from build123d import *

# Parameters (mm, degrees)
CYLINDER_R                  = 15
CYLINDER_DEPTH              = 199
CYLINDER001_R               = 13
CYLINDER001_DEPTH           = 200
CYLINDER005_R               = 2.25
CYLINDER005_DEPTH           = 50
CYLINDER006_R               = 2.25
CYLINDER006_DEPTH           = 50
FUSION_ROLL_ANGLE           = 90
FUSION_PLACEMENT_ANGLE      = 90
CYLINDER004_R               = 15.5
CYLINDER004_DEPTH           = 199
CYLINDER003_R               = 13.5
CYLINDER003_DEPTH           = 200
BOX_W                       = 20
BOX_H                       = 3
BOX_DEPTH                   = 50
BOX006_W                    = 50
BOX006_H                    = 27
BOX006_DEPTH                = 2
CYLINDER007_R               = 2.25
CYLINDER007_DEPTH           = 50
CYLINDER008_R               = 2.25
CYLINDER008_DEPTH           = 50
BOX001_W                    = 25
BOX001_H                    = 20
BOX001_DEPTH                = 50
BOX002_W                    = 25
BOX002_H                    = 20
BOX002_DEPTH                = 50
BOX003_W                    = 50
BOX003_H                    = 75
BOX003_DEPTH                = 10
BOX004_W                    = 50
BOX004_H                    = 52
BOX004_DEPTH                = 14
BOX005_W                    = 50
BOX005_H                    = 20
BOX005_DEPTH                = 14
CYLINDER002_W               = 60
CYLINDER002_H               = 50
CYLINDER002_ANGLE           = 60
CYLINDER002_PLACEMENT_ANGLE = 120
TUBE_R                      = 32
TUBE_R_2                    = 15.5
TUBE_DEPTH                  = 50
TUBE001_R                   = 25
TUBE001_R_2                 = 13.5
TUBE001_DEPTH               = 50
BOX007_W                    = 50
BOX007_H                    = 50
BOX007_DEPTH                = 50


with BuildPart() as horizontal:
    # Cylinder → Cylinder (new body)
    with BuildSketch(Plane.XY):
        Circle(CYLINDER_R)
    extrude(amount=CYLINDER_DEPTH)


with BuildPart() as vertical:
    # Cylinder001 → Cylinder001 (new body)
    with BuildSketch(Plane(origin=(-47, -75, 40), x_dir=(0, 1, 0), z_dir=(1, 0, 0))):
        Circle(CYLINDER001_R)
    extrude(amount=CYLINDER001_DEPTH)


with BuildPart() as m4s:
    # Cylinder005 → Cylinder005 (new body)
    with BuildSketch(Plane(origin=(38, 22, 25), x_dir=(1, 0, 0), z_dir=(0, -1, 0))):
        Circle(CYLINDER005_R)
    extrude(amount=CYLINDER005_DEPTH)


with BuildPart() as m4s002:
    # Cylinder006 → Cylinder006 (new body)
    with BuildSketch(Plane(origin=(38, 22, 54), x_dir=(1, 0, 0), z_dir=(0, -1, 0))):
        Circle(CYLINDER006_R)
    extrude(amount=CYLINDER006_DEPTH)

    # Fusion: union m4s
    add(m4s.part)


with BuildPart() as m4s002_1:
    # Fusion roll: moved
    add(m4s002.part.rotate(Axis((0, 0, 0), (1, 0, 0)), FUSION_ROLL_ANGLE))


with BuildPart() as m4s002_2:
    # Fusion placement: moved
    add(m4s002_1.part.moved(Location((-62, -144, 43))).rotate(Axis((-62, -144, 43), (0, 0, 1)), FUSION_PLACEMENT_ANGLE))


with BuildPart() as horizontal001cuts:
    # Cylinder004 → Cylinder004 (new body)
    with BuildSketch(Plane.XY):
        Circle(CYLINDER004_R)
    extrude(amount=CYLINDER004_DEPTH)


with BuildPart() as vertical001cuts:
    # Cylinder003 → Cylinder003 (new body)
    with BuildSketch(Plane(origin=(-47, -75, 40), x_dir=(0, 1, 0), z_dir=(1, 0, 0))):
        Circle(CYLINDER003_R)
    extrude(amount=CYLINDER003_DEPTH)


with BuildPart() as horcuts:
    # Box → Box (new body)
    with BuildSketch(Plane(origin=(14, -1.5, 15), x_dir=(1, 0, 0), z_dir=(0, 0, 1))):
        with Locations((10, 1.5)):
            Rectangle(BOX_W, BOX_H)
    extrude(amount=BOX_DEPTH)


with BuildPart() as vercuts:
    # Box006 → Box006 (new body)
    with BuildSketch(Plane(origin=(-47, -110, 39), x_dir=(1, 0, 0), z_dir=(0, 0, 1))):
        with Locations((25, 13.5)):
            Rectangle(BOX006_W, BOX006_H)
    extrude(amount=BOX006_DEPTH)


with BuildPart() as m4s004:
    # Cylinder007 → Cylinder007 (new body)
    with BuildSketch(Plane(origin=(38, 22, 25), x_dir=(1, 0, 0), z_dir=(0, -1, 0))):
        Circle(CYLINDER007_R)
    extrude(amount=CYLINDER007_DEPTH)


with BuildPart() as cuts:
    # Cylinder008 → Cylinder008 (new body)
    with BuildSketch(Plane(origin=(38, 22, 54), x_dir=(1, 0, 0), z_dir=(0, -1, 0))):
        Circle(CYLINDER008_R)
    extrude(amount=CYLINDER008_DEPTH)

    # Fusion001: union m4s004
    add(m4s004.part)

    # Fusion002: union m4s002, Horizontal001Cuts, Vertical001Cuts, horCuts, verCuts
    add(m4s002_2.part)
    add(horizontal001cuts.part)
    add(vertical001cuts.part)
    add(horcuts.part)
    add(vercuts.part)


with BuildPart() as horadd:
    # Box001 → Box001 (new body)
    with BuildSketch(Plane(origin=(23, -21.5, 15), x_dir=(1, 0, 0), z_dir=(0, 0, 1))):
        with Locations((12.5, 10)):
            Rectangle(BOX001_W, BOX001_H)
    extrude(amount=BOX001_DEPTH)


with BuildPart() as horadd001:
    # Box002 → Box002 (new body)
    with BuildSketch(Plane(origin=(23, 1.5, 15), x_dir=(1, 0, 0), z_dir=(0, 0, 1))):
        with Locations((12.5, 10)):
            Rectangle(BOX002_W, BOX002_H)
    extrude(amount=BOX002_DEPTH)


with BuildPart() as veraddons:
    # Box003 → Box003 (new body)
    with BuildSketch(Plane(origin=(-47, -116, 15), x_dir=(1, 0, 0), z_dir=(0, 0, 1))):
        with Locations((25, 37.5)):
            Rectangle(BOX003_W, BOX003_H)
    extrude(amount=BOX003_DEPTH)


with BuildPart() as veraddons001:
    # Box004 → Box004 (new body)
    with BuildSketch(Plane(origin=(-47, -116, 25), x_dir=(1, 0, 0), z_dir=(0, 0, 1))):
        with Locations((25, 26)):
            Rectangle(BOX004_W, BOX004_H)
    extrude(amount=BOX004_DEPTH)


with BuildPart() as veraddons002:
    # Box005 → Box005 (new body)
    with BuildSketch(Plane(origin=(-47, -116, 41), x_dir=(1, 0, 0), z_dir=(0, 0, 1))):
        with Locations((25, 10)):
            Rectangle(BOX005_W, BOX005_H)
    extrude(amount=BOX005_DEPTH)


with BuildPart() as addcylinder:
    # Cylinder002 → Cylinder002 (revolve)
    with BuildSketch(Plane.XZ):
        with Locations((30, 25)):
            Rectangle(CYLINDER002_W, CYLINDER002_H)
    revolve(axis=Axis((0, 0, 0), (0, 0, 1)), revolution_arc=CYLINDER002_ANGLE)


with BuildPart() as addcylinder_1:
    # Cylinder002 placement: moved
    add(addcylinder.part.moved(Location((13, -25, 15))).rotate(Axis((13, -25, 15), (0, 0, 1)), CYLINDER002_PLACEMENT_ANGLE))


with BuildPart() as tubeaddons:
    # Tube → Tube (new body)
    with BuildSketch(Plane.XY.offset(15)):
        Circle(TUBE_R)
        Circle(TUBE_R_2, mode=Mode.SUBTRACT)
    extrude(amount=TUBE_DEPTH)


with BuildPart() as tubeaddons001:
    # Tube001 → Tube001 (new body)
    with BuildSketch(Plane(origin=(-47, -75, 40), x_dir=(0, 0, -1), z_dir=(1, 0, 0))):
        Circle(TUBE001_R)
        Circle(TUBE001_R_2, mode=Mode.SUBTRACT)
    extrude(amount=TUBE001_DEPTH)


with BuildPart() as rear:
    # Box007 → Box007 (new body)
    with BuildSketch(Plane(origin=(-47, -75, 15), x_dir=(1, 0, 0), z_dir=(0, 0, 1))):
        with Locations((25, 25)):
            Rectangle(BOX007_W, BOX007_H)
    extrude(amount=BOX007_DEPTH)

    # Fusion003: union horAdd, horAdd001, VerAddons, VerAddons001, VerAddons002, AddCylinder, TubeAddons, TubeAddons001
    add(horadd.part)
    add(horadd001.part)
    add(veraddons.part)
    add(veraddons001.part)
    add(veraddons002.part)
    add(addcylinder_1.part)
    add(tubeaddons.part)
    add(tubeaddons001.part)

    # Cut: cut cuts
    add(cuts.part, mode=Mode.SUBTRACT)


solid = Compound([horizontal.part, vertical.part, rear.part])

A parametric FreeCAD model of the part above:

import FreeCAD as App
import Part
import Sketcher

V = App.Vector
Q = App.Units.Quantity


def add_polygon(sketch, points):
    """Adds a closed chain of lines whose ends are joined by coincident constraints."""
    first, n = sketch.GeometryCount, len(points)
    for a, b in zip(points, points[1:] + points[:1]):
        sketch.addGeometry(Part.LineSegment(App.Vector(*a, 0), App.Vector(*b, 0)), False)
    for i in range(n):
        sketch.addConstraint(Sketcher.Constraint("Coincident", first + i, 2, first + (i + 1) % n, 1))

doc = App.newDocument("Part")
body = doc.addObject("PartDesign::Body", "Body")

# Sketch on XY plane
sketch1 = body.newObject("Sketcher::SketchObject", "Sketch")
sketch1.AttachmentSupport = (doc.getObject("XY_Plane"), [""])
sketch1.MapMode = "FlatFace"
sketch1.addGeometry(Part.Circle(V(0, 0, 0), V(0, 0, 1), 15), False)
sketch1.addConstraint(Sketcher.Constraint("Coincident", 0, 3, -1, 1))
sketch1.addConstraint(Sketcher.Constraint("Diameter", 0, Q("30 mm")))
pad1 = body.newObject("PartDesign::Pad", "Pad")
pad1.Profile = sketch1
pad1.Length = 199
body2 = doc.addObject("PartDesign::Body", "Body001")

# Sketch on YZ plane
sketch2 = body2.newObject("Sketcher::SketchObject", "Sketch001")
sketch2.AttachmentSupport = (doc.getObject("YZ_Plane001"), [""])
sketch2.MapMode = "FlatFace"
sketch2.AttachmentOffset = App.Placement(V(0, 0, -47), App.Rotation())
sketch2.addGeometry(Part.Circle(V(-75, 40, 0), V(0, 0, 1), 13), False)
sketch2.addConstraint(Sketcher.Constraint("Diameter", 0, Q("26 mm")))
sketch2.addConstraint(Sketcher.Constraint("DistanceX", 0, 3, -1, 1, Q("75 mm")))
sketch2.addConstraint(Sketcher.Constraint("DistanceY", -1, 1, 0, 3, Q("40 mm")))
pad2 = body2.newObject("PartDesign::Pad", "Pad001")
pad2.Profile = sketch2
pad2.Length = 200
body3 = doc.addObject("PartDesign::Body", "Body002")

# Sketch on XZ plane
sketch3 = body3.newObject("Sketcher::SketchObject", "Sketch002")
sketch3.AttachmentSupport = (doc.getObject("XZ_Plane002"), [""])
sketch3.MapMode = "FlatFace"
sketch3.AttachmentOffset = App.Placement(V(0, 0, -22), App.Rotation())
sketch3.addGeometry(Part.Circle(V(38, 25, 0), V(0, 0, 1), 2.2), False)
sketch3.addConstraint(Sketcher.Constraint("Diameter", 0, Q("4.5 mm")))
sketch3.addConstraint(Sketcher.Constraint("DistanceX", -1, 1, 0, 3, Q("38 mm")))
sketch3.addConstraint(Sketcher.Constraint("DistanceY", -1, 1, 0, 3, Q("25 mm")))
pad3 = body3.newObject("PartDesign::Pad", "Pad002")
pad3.Profile = sketch3
pad3.Length = 50
body4 = doc.addObject("PartDesign::Body", "Body003")
body4.AllowCompound = True

# Sketch on XZ plane
sketch4 = body4.newObject("Sketcher::SketchObject", "Sketch003")
sketch4.AttachmentSupport = (doc.getObject("XZ_Plane003"), [""])
sketch4.MapMode = "FlatFace"
sketch4.AttachmentOffset = App.Placement(V(0, 0, -22), App.Rotation())
sketch4.addGeometry(Part.Circle(V(38, 54, 0), V(0, 0, 1), 2.2), False)
sketch4.addConstraint(Sketcher.Constraint("Diameter", 0, Q("4.5 mm")))
sketch4.addConstraint(Sketcher.Constraint("DistanceX", -1, 1, 0, 3, Q("38 mm")))
sketch4.addConstraint(Sketcher.Constraint("DistanceY", -1, 1, 0, 3, Q("54 mm")))
pad4 = body4.newObject("PartDesign::Pad", "Pad003")
pad4.Profile = sketch4
pad4.Length = 50
doc.recompute()

boolean = body4.newObject("PartDesign::Boolean", "Boolean")
boolean.Type = "Fuse"
boolean.addObjects([body3])
body5 = doc.addObject("PartDesign::Body", "Body004")
body5.AllowCompound = True
doc.recompute()

body4.Placement = App.Placement(V(0, 0, 0), App.Rotation(V(1, 0, 0), 90))
boolean2 = body5.newObject("PartDesign::Boolean", "Boolean001")
boolean2.Type = "Fuse"
boolean2.addObjects([body4])
body6 = doc.addObject("PartDesign::Body", "Body005")
body6.AllowCompound = True
doc.recompute()

body5.Placement = App.Placement(V(-62, -144, 43), App.Rotation(V(0, 0, 1), 90))
boolean3 = body6.newObject("PartDesign::Boolean", "Boolean002")
boolean3.Type = "Fuse"
boolean3.addObjects([body5])
body7 = doc.addObject("PartDesign::Body", "Body006")

# Sketch on XY plane
sketch5 = body7.newObject("Sketcher::SketchObject", "Sketch004")
sketch5.AttachmentSupport = (doc.getObject("XY_Plane006"), [""])
sketch5.MapMode = "FlatFace"
sketch5.addGeometry(Part.Circle(V(0, 0, 0), V(0, 0, 1), 16), False)
sketch5.addConstraint(Sketcher.Constraint("Coincident", 0, 3, -1, 1))
sketch5.addConstraint(Sketcher.Constraint("Diameter", 0, Q("31 mm")))
pad5 = body7.newObject("PartDesign::Pad", "Pad004")
pad5.Profile = sketch5
pad5.Length = 199
body8 = doc.addObject("PartDesign::Body", "Body007")

# Sketch on YZ plane
sketch6 = body8.newObject("Sketcher::SketchObject", "Sketch005")
sketch6.AttachmentSupport = (doc.getObject("YZ_Plane007"), [""])
sketch6.MapMode = "FlatFace"
sketch6.AttachmentOffset = App.Placement(V(0, 0, -47), App.Rotation())
sketch6.addGeometry(Part.Circle(V(-75, 40, 0), V(0, 0, 1), 14), False)
sketch6.addConstraint(Sketcher.Constraint("Diameter", 0, Q("27 mm")))
sketch6.addConstraint(Sketcher.Constraint("DistanceX", 0, 3, -1, 1, Q("75 mm")))
sketch6.addConstraint(Sketcher.Constraint("DistanceY", -1, 1, 0, 3, Q("40 mm")))
pad6 = body8.newObject("PartDesign::Pad", "Pad005")
pad6.Profile = sketch6
pad6.Length = 200
body9 = doc.addObject("PartDesign::Body", "Body008")

# Sketch on XY plane
sketch7 = body9.newObject("Sketcher::SketchObject", "Sketch006")
sketch7.AttachmentSupport = (doc.getObject("XY_Plane008"), [""])
sketch7.MapMode = "FlatFace"
sketch7.AttachmentOffset = App.Placement(V(0, 0, 15), App.Rotation())
add_polygon(sketch7, [(14, 1.5), (14, -1.5), (34, -1.5), (34, 1.5)])  # lines 0-3
sketch7.addConstraint(Sketcher.Constraint("Vertical", 0))
sketch7.addConstraint(Sketcher.Constraint("Horizontal", 1))
sketch7.addConstraint(Sketcher.Constraint("Vertical", 2))
sketch7.addConstraint(Sketcher.Constraint("Horizontal", 3))
sketch7.addConstraint(Sketcher.Constraint("DistanceX", 1, 1, 1, 2, Q("20 mm")))
sketch7.addConstraint(Sketcher.Constraint("DistanceY", 0, 2, 0, 1, Q("3 mm")))
sketch7.addConstraint(Sketcher.Constraint("DistanceX", -1, 1, 0, 2, Q("14 mm")))
sketch7.addConstraint(Sketcher.Constraint("DistanceY", 0, 2, -1, 1, Q("1.5 mm")))
pad7 = body9.newObject("PartDesign::Pad", "Pad006")
pad7.Profile = sketch7
pad7.Length = 50
body10 = doc.addObject("PartDesign::Body", "Body009")

# Sketch on XY plane
sketch8 = body10.newObject("Sketcher::SketchObject", "Sketch007")
sketch8.AttachmentSupport = (doc.getObject("XY_Plane009"), [""])
sketch8.MapMode = "FlatFace"
sketch8.AttachmentOffset = App.Placement(V(0, 0, 39), App.Rotation())
add_polygon(sketch8, [(-47, -83), (-47, -110), (3, -110), (3, -83)])  # lines 0-3
sketch8.addConstraint(Sketcher.Constraint("Vertical", 0))
sketch8.addConstraint(Sketcher.Constraint("Horizontal", 1))
sketch8.addConstraint(Sketcher.Constraint("Vertical", 2))
sketch8.addConstraint(Sketcher.Constraint("Horizontal", 3))
sketch8.addConstraint(Sketcher.Constraint("DistanceX", 1, 1, 1, 2, Q("50 mm")))
sketch8.addConstraint(Sketcher.Constraint("DistanceY", 0, 2, 0, 1, Q("27 mm")))
sketch8.addConstraint(Sketcher.Constraint("DistanceX", 0, 2, -1, 1, Q("47 mm")))
sketch8.addConstraint(Sketcher.Constraint("DistanceY", 0, 2, -1, 1, Q("110 mm")))
pad8 = body10.newObject("PartDesign::Pad", "Pad007")
pad8.Profile = sketch8
pad8.Length = 2
body11 = doc.addObject("PartDesign::Body", "Body010")

# Sketch on XZ plane
sketch9 = body11.newObject("Sketcher::SketchObject", "Sketch008")
sketch9.AttachmentSupport = (doc.getObject("XZ_Plane010"), [""])
sketch9.MapMode = "FlatFace"
sketch9.AttachmentOffset = App.Placement(V(0, 0, -22), App.Rotation())
sketch9.addGeometry(Part.Circle(V(38, 25, 0), V(0, 0, 1), 2.2), False)
sketch9.addConstraint(Sketcher.Constraint("Diameter", 0, Q("4.5 mm")))
sketch9.addConstraint(Sketcher.Constraint("DistanceX", -1, 1, 0, 3, Q("38 mm")))
sketch9.addConstraint(Sketcher.Constraint("DistanceY", -1, 1, 0, 3, Q("25 mm")))
pad9 = body11.newObject("PartDesign::Pad", "Pad008")
pad9.Profile = sketch9
pad9.Length = 50
body12 = doc.addObject("PartDesign::Body", "Body011")
body12.AllowCompound = True

# Sketch on XZ plane
sketch10 = body12.newObject("Sketcher::SketchObject", "Sketch009")
sketch10.AttachmentSupport = (doc.getObject("XZ_Plane011"), [""])
sketch10.MapMode = "FlatFace"
sketch10.AttachmentOffset = App.Placement(V(0, 0, -22), App.Rotation())
sketch10.addGeometry(Part.Circle(V(38, 54, 0), V(0, 0, 1), 2.2), False)
sketch10.addConstraint(Sketcher.Constraint("Diameter", 0, Q("4.5 mm")))
sketch10.addConstraint(Sketcher.Constraint("DistanceX", -1, 1, 0, 3, Q("38 mm")))
sketch10.addConstraint(Sketcher.Constraint("DistanceY", -1, 1, 0, 3, Q("54 mm")))
pad10 = body12.newObject("PartDesign::Pad", "Pad009")
pad10.Profile = sketch10
pad10.Length = 50
doc.recompute()

boolean4 = body12.newObject("PartDesign::Boolean", "Boolean003")
boolean4.Type = "Fuse"
boolean4.addObjects([body11])
doc.recompute()

boolean5 = body12.newObject("PartDesign::Boolean", "Boolean004")
boolean5.Type = "Fuse"
boolean5.addObjects([body6])
doc.recompute()

boolean6 = body12.newObject("PartDesign::Boolean", "Boolean005")
boolean6.Type = "Fuse"
boolean6.addObjects([body7])
doc.recompute()

boolean7 = body12.newObject("PartDesign::Boolean", "Boolean006")
boolean7.Type = "Fuse"
boolean7.addObjects([body8])
doc.recompute()

boolean8 = body12.newObject("PartDesign::Boolean", "Boolean007")
boolean8.Type = "Fuse"
boolean8.addObjects([body9])
doc.recompute()

boolean9 = body12.newObject("PartDesign::Boolean", "Boolean008")
boolean9.Type = "Fuse"
boolean9.addObjects([body10])
body13 = doc.addObject("PartDesign::Body", "Body012")

# Sketch on XY plane
sketch11 = body13.newObject("Sketcher::SketchObject", "Sketch010")
sketch11.AttachmentSupport = (doc.getObject("XY_Plane012"), [""])
sketch11.MapMode = "FlatFace"
sketch11.AttachmentOffset = App.Placement(V(0, 0, 15), App.Rotation())
add_polygon(sketch11, [(23, -2), (23, -22), (48, -22), (48, -2)])  # lines 0-3
sketch11.addConstraint(Sketcher.Constraint("Vertical", 0))
sketch11.addConstraint(Sketcher.Constraint("Horizontal", 1))
sketch11.addConstraint(Sketcher.Constraint("Vertical", 2))
sketch11.addConstraint(Sketcher.Constraint("Horizontal", 3))
sketch11.addConstraint(Sketcher.Constraint("DistanceX", 1, 1, 1, 2, Q("25 mm")))
sketch11.addConstraint(Sketcher.Constraint("DistanceY", 0, 2, 0, 1, Q("20 mm")))
sketch11.addConstraint(Sketcher.Constraint("DistanceX", -1, 1, 0, 2, Q("23 mm")))
sketch11.addConstraint(Sketcher.Constraint("DistanceY", 0, 2, -1, 1, Q("21.5 mm")))
pad11 = body13.newObject("PartDesign::Pad", "Pad010")
pad11.Profile = sketch11
pad11.Length = 50
body14 = doc.addObject("PartDesign::Body", "Body013")

# Sketch on XY plane
sketch12 = body14.newObject("Sketcher::SketchObject", "Sketch011")
sketch12.AttachmentSupport = (doc.getObject("XY_Plane013"), [""])
sketch12.MapMode = "FlatFace"
sketch12.AttachmentOffset = App.Placement(V(0, 0, 15), App.Rotation())
add_polygon(sketch12, [(23, 22), (23, 2), (48, 2), (48, 22)])  # lines 0-3
sketch12.addConstraint(Sketcher.Constraint("Vertical", 0))
sketch12.addConstraint(Sketcher.Constraint("Horizontal", 1))
sketch12.addConstraint(Sketcher.Constraint("Vertical", 2))
sketch12.addConstraint(Sketcher.Constraint("Horizontal", 3))
sketch12.addConstraint(Sketcher.Constraint("DistanceX", 1, 1, 1, 2, Q("25 mm")))
sketch12.addConstraint(Sketcher.Constraint("DistanceY", 0, 2, 0, 1, Q("20 mm")))
sketch12.addConstraint(Sketcher.Constraint("DistanceX", -1, 1, 0, 2, Q("23 mm")))
sketch12.addConstraint(Sketcher.Constraint("DistanceY", -1, 1, 0, 2, Q("1.5 mm")))
pad12 = body14.newObject("PartDesign::Pad", "Pad011")
pad12.Profile = sketch12
pad12.Length = 50
body15 = doc.addObject("PartDesign::Body", "Body014")

# Sketch on XY plane
sketch13 = body15.newObject("Sketcher::SketchObject", "Sketch012")
sketch13.AttachmentSupport = (doc.getObject("XY_Plane014"), [""])
sketch13.MapMode = "FlatFace"
sketch13.AttachmentOffset = App.Placement(V(0, 0, 15), App.Rotation())
add_polygon(sketch13, [(-47, -41), (-47, -116), (3, -116), (3, -41)])  # lines 0-3
sketch13.addConstraint(Sketcher.Constraint("Vertical", 0))
sketch13.addConstraint(Sketcher.Constraint("Horizontal", 1))
sketch13.addConstraint(Sketcher.Constraint("Vertical", 2))
sketch13.addConstraint(Sketcher.Constraint("Horizontal", 3))
sketch13.addConstraint(Sketcher.Constraint("DistanceX", 1, 1, 1, 2, Q("50 mm")))
sketch13.addConstraint(Sketcher.Constraint("DistanceY", 0, 2, 0, 1, Q("75 mm")))
sketch13.addConstraint(Sketcher.Constraint("DistanceX", 0, 2, -1, 1, Q("47 mm")))
sketch13.addConstraint(Sketcher.Constraint("DistanceY", 0, 2, -1, 1, Q("116 mm")))
pad13 = body15.newObject("PartDesign::Pad", "Pad012")
pad13.Profile = sketch13
pad13.Length = 10
body16 = doc.addObject("PartDesign::Body", "Body015")

# Sketch on XY plane
sketch14 = body16.newObject("Sketcher::SketchObject", "Sketch013")
sketch14.AttachmentSupport = (doc.getObject("XY_Plane015"), [""])
sketch14.MapMode = "FlatFace"
sketch14.AttachmentOffset = App.Placement(V(0, 0, 25), App.Rotation())
add_polygon(sketch14, [(-47, -64), (-47, -116), (3, -116), (3, -64)])  # lines 0-3
sketch14.addConstraint(Sketcher.Constraint("Vertical", 0))
sketch14.addConstraint(Sketcher.Constraint("Horizontal", 1))
sketch14.addConstraint(Sketcher.Constraint("Vertical", 2))
sketch14.addConstraint(Sketcher.Constraint("Horizontal", 3))
sketch14.addConstraint(Sketcher.Constraint("DistanceX", 1, 1, 1, 2, Q("50 mm")))
sketch14.addConstraint(Sketcher.Constraint("DistanceY", 0, 2, 0, 1, Q("52 mm")))
sketch14.addConstraint(Sketcher.Constraint("DistanceX", 0, 2, -1, 1, Q("47 mm")))
sketch14.addConstraint(Sketcher.Constraint("DistanceY", 0, 2, -1, 1, Q("116 mm")))
pad14 = body16.newObject("PartDesign::Pad", "Pad013")
pad14.Profile = sketch14
pad14.Length = 14
body17 = doc.addObject("PartDesign::Body", "Body016")

# Sketch on XY plane
sketch15 = body17.newObject("Sketcher::SketchObject", "Sketch014")
sketch15.AttachmentSupport = (doc.getObject("XY_Plane016"), [""])
sketch15.MapMode = "FlatFace"
sketch15.AttachmentOffset = App.Placement(V(0, 0, 41), App.Rotation())
add_polygon(sketch15, [(-47, -96), (-47, -116), (3, -116), (3, -96)])  # lines 0-3
sketch15.addConstraint(Sketcher.Constraint("Vertical", 0))
sketch15.addConstraint(Sketcher.Constraint("Horizontal", 1))
sketch15.addConstraint(Sketcher.Constraint("Vertical", 2))
sketch15.addConstraint(Sketcher.Constraint("Horizontal", 3))
sketch15.addConstraint(Sketcher.Constraint("DistanceX", 1, 1, 1, 2, Q("50 mm")))
sketch15.addConstraint(Sketcher.Constraint("DistanceY", 0, 2, 0, 1, Q("20 mm")))
sketch15.addConstraint(Sketcher.Constraint("DistanceX", 0, 2, -1, 1, Q("47 mm")))
sketch15.addConstraint(Sketcher.Constraint("DistanceY", 0, 2, -1, 1, Q("116 mm")))
pad15 = body17.newObject("PartDesign::Pad", "Pad014")
pad15.Profile = sketch15
pad15.Length = 14
body18 = doc.addObject("PartDesign::Body", "Body017")

# Sketch on XZ plane
sketch16 = body18.newObject("Sketcher::SketchObject", "Sketch015")
sketch16.AttachmentSupport = (doc.getObject("XZ_Plane017"), [""])
sketch16.MapMode = "FlatFace"
add_polygon(sketch16, [(0, 50), (0, 0), (60, 0), (60, 50)])  # lines 0-3
sketch16.addConstraint(Sketcher.Constraint("Vertical", 0))
sketch16.addConstraint(Sketcher.Constraint("Horizontal", 1))
sketch16.addConstraint(Sketcher.Constraint("Vertical", 2))
sketch16.addConstraint(Sketcher.Constraint("Horizontal", 3))
sketch16.addConstraint(Sketcher.Constraint("Coincident", 0, 2, -1, 1))
sketch16.addConstraint(Sketcher.Constraint("DistanceX", 1, 1, 1, 2, Q("60 mm")))
sketch16.addConstraint(Sketcher.Constraint("DistanceY", 0, 2, 0, 1, Q("50 mm")))
revolution = body18.newObject("PartDesign::Revolution", "Revolution")
revolution.Profile = sketch16
revolution.ReferenceAxis = (sketch16, ["V_Axis"])
revolution.Angle = 60
body19 = doc.addObject("PartDesign::Body", "Body018")
doc.recompute()

body18.Placement = App.Placement(V(13, -25, 15), App.Rotation(V(0, 0, 1), 120))
boolean10 = body19.newObject("PartDesign::Boolean", "Boolean009")
boolean10.Type = "Fuse"
boolean10.addObjects([body18])
body20 = doc.addObject("PartDesign::Body", "Body019")

# Sketch on XY plane
sketch17 = body20.newObject("Sketcher::SketchObject", "Sketch016")
sketch17.AttachmentSupport = (doc.getObject("XY_Plane019"), [""])
sketch17.MapMode = "FlatFace"
sketch17.AttachmentOffset = App.Placement(V(0, 0, 15), App.Rotation())
sketch17.addGeometry(Part.Circle(V(0, 0, 0), V(0, 0, 1), 32), False)
sketch17.addGeometry(Part.Circle(V(0, 0, 0), V(0, 0, 1), 16), False)
sketch17.addConstraint(Sketcher.Constraint("Coincident", 0, 3, -1, 1))
sketch17.addConstraint(Sketcher.Constraint("Coincident", 1, 3, -1, 1))
sketch17.addConstraint(Sketcher.Constraint("Diameter", 0, Q("64 mm")))
sketch17.addConstraint(Sketcher.Constraint("Diameter", 1, Q("31 mm")))
pad16 = body20.newObject("PartDesign::Pad", "Pad015")
pad16.Profile = sketch17
pad16.Length = 50
body21 = doc.addObject("PartDesign::Body", "Body020")

# Sketch on YZ plane
sketch18 = body21.newObject("Sketcher::SketchObject", "Sketch017")
sketch18.AttachmentSupport = (doc.getObject("YZ_Plane020"), [""])
sketch18.MapMode = "FlatFace"
sketch18.AttachmentOffset = App.Placement(V(0, 0, -47), App.Rotation())
sketch18.addGeometry(Part.Circle(V(-75, 40, 0), V(0, 0, 1), 25), False)
sketch18.addGeometry(Part.Circle(V(-75, 40, 0), V(0, 0, 1), 14), False)
sketch18.addConstraint(Sketcher.Constraint("Coincident", 1, 3, 0, 3))
sketch18.addConstraint(Sketcher.Constraint("Diameter", 0, Q("50 mm")))
sketch18.addConstraint(Sketcher.Constraint("Diameter", 1, Q("27 mm")))
sketch18.addConstraint(Sketcher.Constraint("DistanceX", 0, 3, -1, 1, Q("75 mm")))
sketch18.addConstraint(Sketcher.Constraint("DistanceY", -1, 1, 0, 3, Q("40 mm")))
pad17 = body21.newObject("PartDesign::Pad", "Pad016")
pad17.Profile = sketch18
pad17.Length = 50
body22 = doc.addObject("PartDesign::Body", "Body021")
body22.AllowCompound = True

# Sketch on XY plane
sketch19 = body22.newObject("Sketcher::SketchObject", "Sketch018")
sketch19.AttachmentSupport = (doc.getObject("XY_Plane021"), [""])
sketch19.MapMode = "FlatFace"
sketch19.AttachmentOffset = App.Placement(V(0, 0, 15), App.Rotation())
add_polygon(sketch19, [(-47, -25), (-47, -75), (3, -75), (3, -25)])  # lines 0-3
sketch19.addConstraint(Sketcher.Constraint("Vertical", 0))
sketch19.addConstraint(Sketcher.Constraint("Horizontal", 1))
sketch19.addConstraint(Sketcher.Constraint("Vertical", 2))
sketch19.addConstraint(Sketcher.Constraint("Horizontal", 3))
sketch19.addConstraint(Sketcher.Constraint("Equal", 3, 0))
sketch19.addConstraint(Sketcher.Constraint("DistanceX", 1, 1, 1, 2, Q("50 mm")))
sketch19.addConstraint(Sketcher.Constraint("DistanceX", 0, 2, -1, 1, Q("47 mm")))
sketch19.addConstraint(Sketcher.Constraint("DistanceY", 0, 2, -1, 1, Q("75 mm")))
pad18 = body22.newObject("PartDesign::Pad", "Pad017")
pad18.Profile = sketch19
pad18.Length = 50
doc.recompute()

boolean11 = body22.newObject("PartDesign::Boolean", "Boolean010")
boolean11.Type = "Fuse"
boolean11.addObjects([body13])
doc.recompute()

boolean12 = body22.newObject("PartDesign::Boolean", "Boolean011")
boolean12.Type = "Fuse"
boolean12.addObjects([body14])
doc.recompute()

boolean13 = body22.newObject("PartDesign::Boolean", "Boolean012")
boolean13.Type = "Fuse"
boolean13.addObjects([body15])
doc.recompute()

boolean14 = body22.newObject("PartDesign::Boolean", "Boolean013")
boolean14.Type = "Fuse"
boolean14.addObjects([body16])
doc.recompute()

boolean15 = body22.newObject("PartDesign::Boolean", "Boolean014")
boolean15.Type = "Fuse"
boolean15.addObjects([body17])
doc.recompute()

boolean16 = body22.newObject("PartDesign::Boolean", "Boolean015")
boolean16.Type = "Fuse"
boolean16.addObjects([body19])
doc.recompute()

boolean17 = body22.newObject("PartDesign::Boolean", "Boolean016")
boolean17.Type = "Fuse"
boolean17.addObjects([body20])
doc.recompute()

boolean18 = body22.newObject("PartDesign::Boolean", "Boolean017")
boolean18.Type = "Fuse"
boolean18.addObjects([body21])
doc.recompute()

boolean19 = body22.newObject("PartDesign::Boolean", "Boolean018")
boolean19.Type = "Cut"
boolean19.addObjects([body12])

doc.recompute()
